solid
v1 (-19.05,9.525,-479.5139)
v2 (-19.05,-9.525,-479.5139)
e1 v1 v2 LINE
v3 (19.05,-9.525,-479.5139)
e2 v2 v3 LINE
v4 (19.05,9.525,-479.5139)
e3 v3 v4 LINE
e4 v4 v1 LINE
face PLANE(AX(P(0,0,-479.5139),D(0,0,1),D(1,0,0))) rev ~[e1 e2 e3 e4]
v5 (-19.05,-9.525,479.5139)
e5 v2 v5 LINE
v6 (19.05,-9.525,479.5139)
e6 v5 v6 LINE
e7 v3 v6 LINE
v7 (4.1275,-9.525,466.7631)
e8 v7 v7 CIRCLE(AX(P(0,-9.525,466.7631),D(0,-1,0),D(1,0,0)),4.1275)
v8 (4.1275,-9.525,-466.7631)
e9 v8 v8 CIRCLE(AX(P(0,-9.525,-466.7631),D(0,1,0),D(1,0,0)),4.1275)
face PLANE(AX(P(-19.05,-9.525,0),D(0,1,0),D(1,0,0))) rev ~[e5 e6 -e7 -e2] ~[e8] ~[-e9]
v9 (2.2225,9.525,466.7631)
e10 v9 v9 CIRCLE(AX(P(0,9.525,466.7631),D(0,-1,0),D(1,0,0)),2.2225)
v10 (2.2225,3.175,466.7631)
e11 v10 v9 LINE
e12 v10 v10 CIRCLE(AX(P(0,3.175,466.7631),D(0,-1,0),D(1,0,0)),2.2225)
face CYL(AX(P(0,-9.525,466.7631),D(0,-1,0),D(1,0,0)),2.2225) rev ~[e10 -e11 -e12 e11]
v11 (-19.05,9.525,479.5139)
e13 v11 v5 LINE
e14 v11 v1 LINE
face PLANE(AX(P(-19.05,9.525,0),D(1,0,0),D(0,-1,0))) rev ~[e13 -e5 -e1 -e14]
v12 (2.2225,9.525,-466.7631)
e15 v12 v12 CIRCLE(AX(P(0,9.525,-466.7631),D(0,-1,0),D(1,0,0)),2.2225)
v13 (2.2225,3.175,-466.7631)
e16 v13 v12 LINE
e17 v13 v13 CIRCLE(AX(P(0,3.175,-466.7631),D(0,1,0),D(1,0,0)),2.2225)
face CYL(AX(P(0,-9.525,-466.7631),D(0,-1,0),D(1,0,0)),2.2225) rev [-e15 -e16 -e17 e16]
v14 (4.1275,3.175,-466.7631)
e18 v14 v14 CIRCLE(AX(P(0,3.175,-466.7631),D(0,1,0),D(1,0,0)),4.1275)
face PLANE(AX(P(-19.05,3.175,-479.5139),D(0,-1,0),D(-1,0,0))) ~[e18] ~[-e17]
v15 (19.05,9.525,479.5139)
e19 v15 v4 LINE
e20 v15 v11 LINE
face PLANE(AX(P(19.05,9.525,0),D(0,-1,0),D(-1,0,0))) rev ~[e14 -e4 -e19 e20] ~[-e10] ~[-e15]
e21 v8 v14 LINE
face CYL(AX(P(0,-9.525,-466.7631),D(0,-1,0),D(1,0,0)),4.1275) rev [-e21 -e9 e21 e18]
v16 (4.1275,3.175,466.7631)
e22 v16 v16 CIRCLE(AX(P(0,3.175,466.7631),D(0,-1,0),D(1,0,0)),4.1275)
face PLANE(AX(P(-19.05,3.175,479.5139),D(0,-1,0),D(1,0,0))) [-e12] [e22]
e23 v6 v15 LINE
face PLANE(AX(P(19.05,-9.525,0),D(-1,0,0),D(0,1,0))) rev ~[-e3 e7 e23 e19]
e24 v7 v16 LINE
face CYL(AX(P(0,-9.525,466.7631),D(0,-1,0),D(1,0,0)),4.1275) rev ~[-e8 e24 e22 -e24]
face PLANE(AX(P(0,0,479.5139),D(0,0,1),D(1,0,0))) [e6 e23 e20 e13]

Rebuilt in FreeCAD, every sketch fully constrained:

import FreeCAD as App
import Part
import Sketcher

V = App.Vector
Q = App.Units.Quantity


def add_polygon(sketch, points):
    """Adds a closed chain of lines whose ends are joined by coincident constraints."""
    first, n = sketch.GeometryCount, len(points)
    for a, b in zip(points, points[1:] + points[:1]):
        sketch.addGeometry(Part.LineSegment(App.Vector(*a, 0), App.Vector(*b, 0)), False)
    for i in range(n):
        sketch.addConstraint(Sketcher.Constraint("Coincident", first + i, 2, first + (i + 1) % n, 1))

doc = App.newDocument("Part")
body = doc.addObject("PartDesign::Body", "Body")

# Sketch on XY plane
sketch1 = body.newObject("Sketcher::SketchObject", "Sketch")
sketch1.AttachmentSupport = (doc.getObject("XY_Plane"), [""])
sketch1.MapMode = "FlatFace"
add_polygon(sketch1, [(-19, 10), (-19, -10), (19, -10), (19, 10)])  # lines 0-3
sketch1.addConstraint(Sketcher.Constraint("Vertical", 0))
sketch1.addConstraint(Sketcher.Constraint("Horizontal", 1))
sketch1.addConstraint(Sketcher.Constraint("Vertical", 2))
sketch1.addConstraint(Sketcher.Constraint("Horizontal", 3))
sketch1.addConstraint(Sketcher.Constraint("Symmetric", 0, 2, 2, 2, -1, 1))
sketch1.addConstraint(Sketcher.Constraint("DistanceX", 1, 1, 1, 2, Q("1.5 in")))
sketch1.addConstraint(Sketcher.Constraint("DistanceY", 0, 2, 0, 1, Q("0.75 in")))
pad1 = body.newObject("PartDesign::Pad", "Pad")
pad1.Profile = sketch1
pad1.Length = Q("37.757 in")
pad1.Midplane = True

# Sketch on XZ plane
sketch2 = body.newObject("Sketcher::SketchObject", "Sketch001")
sketch2.AttachmentSupport = (doc.getObject("XZ_Plane"), [""])
sketch2.MapMode = "FlatFace"
sketch2.AttachmentOffset = App.Placement(V(0, 0, 0.375 * 25.4), App.Rotation())
sketch2.addGeometry(Part.Circle(V(0, 466.8, 0), V(0, 0, 1), 2.2), False)
sketch2.addConstraint(Sketcher.Constraint("PointOnObject", 0, 3, -2))
sketch2.addConstraint(Sketcher.Constraint("Diameter", 0, Q("0.175 in")))
sketch2.addConstraint(Sketcher.Constraint("DistanceY", -1, 1, 0, 3, Q("18.3765 in")))
pocket1 = body.newObject("PartDesign::Pocket", "Pocket")
pocket1.Profile = sketch2
pocket1.Length = Q("1 in")

# Sketch on XZ plane
sketch3 = body.newObject("Sketcher::SketchObject", "Sketch002")
sketch3.AttachmentSupport = (doc.getObject("XZ_Plane"), [""])
sketch3.MapMode = "FlatFace"
sketch3.AttachmentOffset = App.Placement(V(0, 0, 0.375 * 25.4), App.Rotation())
sketch3.addGeometry(Part.Circle(V(0, 466.8, 0), V(0, 0, 1), 4.1), False)
sketch3.addGeometry(Part.Circle(V(0, 466.8, 0), V(0, 0, 1), 2.2), False)
sketch3.addConstraint(Sketcher.Constraint("Coincident", 1, 3, 0, 3))
sketch3.addConstraint(Sketcher.Constraint("PointOnObject", 0, 3, -2))
sketch3.addConstraint(Sketcher.Constraint("Diameter", 0, Q("0.325 in")))
sketch3.addConstraint(Sketcher.Constraint("Diameter", 1, Q("0.175 in")))
sketch3.addConstraint(Sketcher.Constraint("DistanceY", -1, 1, 0, 3, Q("18.3765 in")))
pocket2 = body.newObject("PartDesign::Pocket", "Pocket001")
pocket2.Profile = sketch3
pocket2.Length = Q("0.5 in")
doc.recompute()

mirrored = body.newObject("PartDesign::Mirrored", "Mirrored")
mirrored.Originals = [pocket1, pocket2]
mirrored.MirrorPlane = (doc.getObject("XY_Plane"), [""])
body.Tip = mirrored

doc.recompute()
